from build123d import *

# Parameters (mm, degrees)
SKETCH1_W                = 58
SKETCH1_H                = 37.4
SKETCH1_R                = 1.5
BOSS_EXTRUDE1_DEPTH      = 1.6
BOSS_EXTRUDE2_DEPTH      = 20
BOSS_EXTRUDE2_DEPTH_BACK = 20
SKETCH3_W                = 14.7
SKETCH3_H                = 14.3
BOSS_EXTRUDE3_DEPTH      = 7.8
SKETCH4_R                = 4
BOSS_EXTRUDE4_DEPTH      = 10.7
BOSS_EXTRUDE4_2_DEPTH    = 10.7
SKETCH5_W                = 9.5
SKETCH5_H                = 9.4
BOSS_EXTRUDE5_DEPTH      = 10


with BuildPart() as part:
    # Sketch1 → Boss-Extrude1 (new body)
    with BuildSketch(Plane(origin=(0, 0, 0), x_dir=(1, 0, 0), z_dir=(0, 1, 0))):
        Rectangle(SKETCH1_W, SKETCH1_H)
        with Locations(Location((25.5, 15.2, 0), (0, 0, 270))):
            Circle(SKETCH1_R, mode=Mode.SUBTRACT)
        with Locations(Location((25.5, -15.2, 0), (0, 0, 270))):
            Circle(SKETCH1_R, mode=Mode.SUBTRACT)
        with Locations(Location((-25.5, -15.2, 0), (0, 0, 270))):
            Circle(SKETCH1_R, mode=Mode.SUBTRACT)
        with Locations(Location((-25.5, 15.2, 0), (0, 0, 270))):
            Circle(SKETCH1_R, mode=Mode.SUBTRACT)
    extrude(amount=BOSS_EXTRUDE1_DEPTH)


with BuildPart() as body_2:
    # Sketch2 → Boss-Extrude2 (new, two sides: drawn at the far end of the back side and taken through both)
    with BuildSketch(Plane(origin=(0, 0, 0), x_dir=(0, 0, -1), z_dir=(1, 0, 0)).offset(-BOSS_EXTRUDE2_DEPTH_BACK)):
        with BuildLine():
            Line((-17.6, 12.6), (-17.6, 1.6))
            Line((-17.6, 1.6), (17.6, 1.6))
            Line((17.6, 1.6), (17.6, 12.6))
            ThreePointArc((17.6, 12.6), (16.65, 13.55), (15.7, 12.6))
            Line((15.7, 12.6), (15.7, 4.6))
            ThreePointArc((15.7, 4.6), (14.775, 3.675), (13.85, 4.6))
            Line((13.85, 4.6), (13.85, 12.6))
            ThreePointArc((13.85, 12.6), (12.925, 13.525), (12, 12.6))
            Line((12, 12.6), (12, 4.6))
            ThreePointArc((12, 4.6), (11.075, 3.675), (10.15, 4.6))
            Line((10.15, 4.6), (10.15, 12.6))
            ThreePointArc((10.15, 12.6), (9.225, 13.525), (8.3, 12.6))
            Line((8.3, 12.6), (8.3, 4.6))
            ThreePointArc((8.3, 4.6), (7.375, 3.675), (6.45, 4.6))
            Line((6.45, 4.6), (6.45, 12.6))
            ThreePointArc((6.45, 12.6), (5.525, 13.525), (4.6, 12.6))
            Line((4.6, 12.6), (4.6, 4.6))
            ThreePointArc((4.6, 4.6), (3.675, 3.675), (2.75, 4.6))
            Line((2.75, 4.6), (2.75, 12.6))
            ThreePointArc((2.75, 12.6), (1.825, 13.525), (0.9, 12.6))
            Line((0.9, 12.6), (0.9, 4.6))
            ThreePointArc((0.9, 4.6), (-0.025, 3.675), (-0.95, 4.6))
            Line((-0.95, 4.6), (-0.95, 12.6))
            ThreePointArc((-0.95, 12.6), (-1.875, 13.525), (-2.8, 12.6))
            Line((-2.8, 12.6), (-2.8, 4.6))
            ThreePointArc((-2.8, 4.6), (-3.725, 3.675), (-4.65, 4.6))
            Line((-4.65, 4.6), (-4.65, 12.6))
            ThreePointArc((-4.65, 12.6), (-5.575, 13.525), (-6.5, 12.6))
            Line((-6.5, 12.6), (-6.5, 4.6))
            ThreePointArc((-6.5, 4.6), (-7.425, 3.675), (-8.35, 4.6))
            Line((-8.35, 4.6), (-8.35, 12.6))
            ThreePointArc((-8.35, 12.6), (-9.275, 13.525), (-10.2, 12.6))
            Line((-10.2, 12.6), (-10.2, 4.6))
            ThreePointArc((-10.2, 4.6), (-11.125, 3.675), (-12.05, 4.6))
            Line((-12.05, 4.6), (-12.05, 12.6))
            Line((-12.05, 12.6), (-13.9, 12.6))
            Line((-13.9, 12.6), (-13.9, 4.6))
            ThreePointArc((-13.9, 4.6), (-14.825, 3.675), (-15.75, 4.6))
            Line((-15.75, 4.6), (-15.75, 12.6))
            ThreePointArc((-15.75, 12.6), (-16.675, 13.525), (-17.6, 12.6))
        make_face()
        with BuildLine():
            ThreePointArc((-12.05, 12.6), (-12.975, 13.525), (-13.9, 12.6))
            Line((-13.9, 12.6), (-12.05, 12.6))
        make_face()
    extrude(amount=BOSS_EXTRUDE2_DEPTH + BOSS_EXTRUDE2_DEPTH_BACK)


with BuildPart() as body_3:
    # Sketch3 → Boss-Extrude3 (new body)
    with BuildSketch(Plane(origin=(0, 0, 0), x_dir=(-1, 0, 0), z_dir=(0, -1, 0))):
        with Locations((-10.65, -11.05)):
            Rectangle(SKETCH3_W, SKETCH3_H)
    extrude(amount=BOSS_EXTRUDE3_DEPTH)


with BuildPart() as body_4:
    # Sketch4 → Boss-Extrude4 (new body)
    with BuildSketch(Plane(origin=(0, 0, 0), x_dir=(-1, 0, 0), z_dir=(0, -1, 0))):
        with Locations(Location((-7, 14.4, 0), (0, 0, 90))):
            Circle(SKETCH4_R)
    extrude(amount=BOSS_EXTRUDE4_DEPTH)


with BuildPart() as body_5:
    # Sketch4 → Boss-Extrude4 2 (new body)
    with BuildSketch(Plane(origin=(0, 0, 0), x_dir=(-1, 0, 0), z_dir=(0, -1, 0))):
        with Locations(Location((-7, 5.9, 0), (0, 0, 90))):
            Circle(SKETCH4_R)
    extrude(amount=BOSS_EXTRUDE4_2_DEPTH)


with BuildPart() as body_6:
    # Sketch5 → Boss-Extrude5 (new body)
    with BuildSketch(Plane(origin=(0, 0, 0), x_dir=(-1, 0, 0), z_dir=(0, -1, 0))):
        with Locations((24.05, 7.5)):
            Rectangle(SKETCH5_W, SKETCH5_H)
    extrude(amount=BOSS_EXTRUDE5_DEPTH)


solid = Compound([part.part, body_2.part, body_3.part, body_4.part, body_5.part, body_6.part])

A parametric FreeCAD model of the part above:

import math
import FreeCAD as App
import Part
import Sketcher

V = App.Vector
Q = App.Units.Quantity

doc = App.newDocument("Part")
body = doc.addObject("PartDesign::Body", "Body")

# Sketch on XZ plane
sketch1 = body.newObject("Sketcher::SketchObject", "Sketch")
sketch1.AttachmentSupport = (doc.getObject("XZ_Plane"), [""])
sketch1.MapMode = "FlatFace"
sketch1.addGeometry([
    Part.LineSegment(V(-29, -18.7, 0), V(-29, 18.7, 0)),  # 0
    Part.LineSegment(V(-29, 18.7, 0), V(29, 18.7, 0)),  # 1
    Part.LineSegment(V(29, 18.7, 0), V(29, -18.7, 0)),  # 2
    Part.LineSegment(V(29, -18.7, 0), V(-29, -18.7, 0)),  # 3
    Part.Circle(V(-25.5, 15.2, 0), V(0, 0, 1), 1.5),  # 4
    Part.Circle(V(25.5, 15.2, 0), V(0, 0, 1), 1.5),  # 5
    Part.Circle(V(-25.5, -15.2, 0), V(0, 0, 1), 1.5),  # 6
    Part.Circle(V(25.5, -15.2, 0), V(0, 0, 1), 1.5),  # 7
], False)
sketch1.addConstraint([
    Sketcher.Constraint("Coincident", 0, 2, 1, 1),
    Sketcher.Constraint("Coincident", 1, 2, 2, 1),
    Sketcher.Constraint("Coincident", 2, 2, 3, 1),
    Sketcher.Constraint("Coincident", 3, 2, 0, 1),
    Sketcher.Constraint("Vertical", 0),
    Sketcher.Constraint("Horizontal", 1),
    Sketcher.Constraint("Vertical", 2),
    Sketcher.Constraint("Horizontal", 3),
    Sketcher.Constraint("Equal", 4, 5),
    Sketcher.Constraint("Equal", 5, 6),
    Sketcher.Constraint("Equal", 6, 7),
    Sketcher.Constraint("Symmetric", 5, 3, 6, 3, -1, 1),
    Sketcher.Constraint("Symmetric", 4, 3, 7, 3, -1, 1),
    Sketcher.Constraint("Symmetric", 0, 2, 2, 2, -1, 1),
    Sketcher.Constraint("Symmetric", 4, 3, 5, 3, -2),
    Sketcher.Constraint("Diameter", 4, Q("3 mm")),
    Sketcher.Constraint("DistanceX", 1, 1, 1, 2, Q("58 mm")),
    Sketcher.Constraint("DistanceY", 0, 1, 0, 2, Q("37.4 mm")),
    Sketcher.Constraint("DistanceX", 4, 3, 5, 3, Q("51 mm")),
    Sketcher.Constraint("DistanceY", -1, 1, 4, 3, Q("15.2 mm")),
])
pad1 = body.newObject("PartDesign::Pad", "Pad")
pad1.Profile = sketch1
pad1.Length = 1.6
pad1.Reversed = True
body2 = doc.addObject("PartDesign::Body", "Body001")

# Sketch on YZ plane
sketch2 = body2.newObject("Sketcher::SketchObject", "Sketch001")
sketch2.AttachmentSupport = (doc.getObject("YZ_Plane001"), [""])
sketch2.MapMode = "FlatFace"
sketch2.addGeometry([
    Part.LineSegment(V(12.6, 17.6, 0), V(1.6, 17.6, 0)),  # 0
    Part.LineSegment(V(1.6, 17.6, 0), V(1.6, -17.6, 0)),  # 1
    Part.LineSegment(V(1.6, -17.6, 0), V(12.6, -17.6, 0)),  # 2
    Part.ArcOfCircle(Part.Circle(V(12.6, -16.65, 0), V(0, 0, 1), 0.95), math.radians(-90), math.radians(90)),  # 3
    Part.LineSegment(V(12.6, -15.7, 0), V(4.6, -15.7, 0)),  # 4
    Part.ArcOfCircle(Part.Circle(V(4.6, -14.775, 0), V(0, 0, 1), 0.925), math.radians(90), math.radians(270)),  # 5
    Part.LineSegment(V(4.6, -13.85, 0), V(12.6, -13.85, 0)),  # 6
    Part.ArcOfCircle(Part.Circle(V(12.6, -12.925, 0), V(0, 0, 1), 0.925), math.radians(-90), math.radians(90)),  # 7
    Part.LineSegment(V(12.6, -12, 0), V(4.6, -12, 0)),  # 8
    Part.ArcOfCircle(Part.Circle(V(4.6, -11.075, 0), V(0, 0, 1), 0.925), math.radians(90), math.radians(270)),  # 9
    Part.LineSegment(V(4.6, -10.15, 0), V(12.6, -10.15, 0)),  # 10
    Part.ArcOfCircle(Part.Circle(V(12.6, -9.225, 0), V(0, 0, 1), 0.925), math.radians(-90), math.radians(90)),  # 11
    Part.LineSegment(V(12.6, -8.3, 0), V(4.6, -8.3, 0)),  # 12
    Part.ArcOfCircle(Part.Circle(V(4.6, -7.375, 0), V(0, 0, 1), 0.925), math.radians(90), math.radians(270)),  # 13
    Part.LineSegment(V(4.6, -6.45, 0), V(12.6, -6.45, 0)),  # 14
    Part.ArcOfCircle(Part.Circle(V(12.6, -5.525, 0), V(0, 0, 1), 0.925), math.radians(-90), math.radians(90)),  # 15
    Part.LineSegment(V(12.6, -4.6, 0), V(4.6, -4.6, 0)),  # 16
    Part.ArcOfCircle(Part.Circle(V(4.6, -3.675, 0), V(0, 0, 1), 0.925), math.radians(90), math.radians(270)),  # 17
    Part.LineSegment(V(4.6, -2.75, 0), V(12.6, -2.75, 0)),  # 18
    Part.ArcOfCircle(Part.Circle(V(12.6, -1.825, 0), V(0, 0, 1), 0.925), math.radians(-90), math.radians(90)),  # 19
    Part.LineSegment(V(12.6, -0.9, 0), V(4.6, -0.9, 0)),  # 20
    Part.ArcOfCircle(Part.Circle(V(4.6, 0.025, 0), V(0, 0, 1), 0.925), math.radians(90), math.radians(270)),  # 21
    Part.LineSegment(V(4.6, 0.95, 0), V(12.6, 0.95, 0)),  # 22
    Part.ArcOfCircle(Part.Circle(V(12.6, 1.875, 0), V(0, 0, 1), 0.925), math.radians(-90), math.radians(90)),  # 23
    Part.LineSegment(V(12.6, 2.8, 0), V(4.6, 2.8, 0)),  # 24
    Part.ArcOfCircle(Part.Circle(V(4.6, 3.725, 0), V(0, 0, 1), 0.925), math.radians(90), math.radians(270)),  # 25
    Part.LineSegment(V(4.6, 4.65, 0), V(12.6, 4.65, 0)),  # 26
    Part.ArcOfCircle(Part.Circle(V(12.6, 5.575, 0), V(0, 0, 1), 0.925), math.radians(-90), math.radians(90)),  # 27
    Part.LineSegment(V(12.6, 6.5, 0), V(4.6, 6.5, 0)),  # 28
    Part.ArcOfCircle(Part.Circle(V(4.6, 7.425, 0), V(0, 0, 1), 0.925), math.radians(90), math.radians(270)),  # 29
    Part.LineSegment(V(4.6, 8.35, 0), V(12.6, 8.35, 0)),  # 30
    Part.ArcOfCircle(Part.Circle(V(12.6, 9.275, 0), V(0, 0, 1), 0.925), math.radians(-90), math.radians(90)),  # 31
    Part.LineSegment(V(12.6, 10.2, 0), V(4.6, 10.2, 0)),  # 32
    Part.ArcOfCircle(Part.Circle(V(4.6, 11.125, 0), V(0, 0, 1), 0.925), math.radians(90), math.radians(270)),  # 33
    Part.LineSegment(V(4.6, 12.05, 0), V(12.6, 12.05, 0)),  # 34
    Part.ArcOfCircle(Part.Circle(V(12.6, 12.975, 0), V(0, 0, 1), 0.925), math.radians(-90), math.radians(90)),  # 35
    Part.LineSegment(V(12.6, 13.9, 0), V(4.6, 13.9, 0)),  # 36
    Part.ArcOfCircle(Part.Circle(V(4.6, 14.825, 0), V(0, 0, 1), 0.925), math.radians(90), math.radians(270)),  # 37
    Part.LineSegment(V(4.6, 15.75, 0), V(12.6, 15.75, 0)),  # 38
    Part.ArcOfCircle(Part.Circle(V(12.6, 16.675, 0), V(0, 0, 1), 0.925), math.radians(-90), math.radians(90)),  # 39
], False)
sketch2.addConstraint([
    Sketcher.Constraint("Coincident", 0, 2, 1, 1),
    Sketcher.Constraint("Coincident", 1, 2, 2, 1),
    Sketcher.Constraint("Tangent", 2, 2, 3, 1),
    Sketcher.Constraint("Tangent", 3, 2, 4, 1),
    Sketcher.Constraint("Tangent", 4, 2, 5, 2),
    Sketcher.Constraint("Tangent", 5, 1, 6, 1),
    Sketcher.Constraint("Tangent", 6, 2, 7, 1),
    Sketcher.Constraint("Tangent", 7, 2, 8, 1),
    Sketcher.Constraint("Tangent", 8, 2, 9, 2),
    Sketcher.Constraint("Tangent", 9, 1, 10, 1),
    Sketcher.Constraint("Tangent", 10, 2, 11, 1),
    Sketcher.Constraint("Tangent", 11, 2, 12, 1),
    Sketcher.Constraint("Tangent", 12, 2, 13, 2),
    Sketcher.Constraint("Tangent", 13, 1, 14, 1),
    Sketcher.Constraint("Tangent", 14, 2, 15, 1),
    Sketcher.Constraint("Tangent", 15, 2, 16, 1),
    Sketcher.Constraint("Tangent", 16, 2, 17, 2),
    Sketcher.Constraint("Tangent", 17, 1, 18, 1),
    Sketcher.Constraint("Tangent", 18, 2, 19, 1),
    Sketcher.Constraint("Tangent", 19, 2, 20, 1),
    Sketcher.Constraint("Tangent", 20, 2, 21, 2),
    Sketcher.Constraint("Tangent", 21, 1, 22, 1),
    Sketcher.Constraint("Tangent", 22, 2, 23, 1),
    Sketcher.Constraint("Tangent", 23, 2, 24, 1),
    Sketcher.Constraint("Tangent", 24, 2, 25, 2),
    Sketcher.Constraint("Tangent", 25, 1, 26, 1),
    Sketcher.Constraint("Tangent", 26, 2, 27, 1),
    Sketcher.Constraint("Tangent", 27, 2, 28, 1),
    Sketcher.Constraint("Tangent", 28, 2, 29, 2),
    Sketcher.Constraint("Tangent", 29, 1, 30, 1),
    Sketcher.Constraint("Tangent", 30, 2, 31, 1),
    Sketcher.Constraint("Tangent", 31, 2, 32, 1),
    Sketcher.Constraint("Tangent", 32, 2, 33, 2),
    Sketcher.Constraint("Tangent", 33, 1, 34, 1),
    Sketcher.Constraint("Tangent", 34, 2, 35, 1),
    Sketcher.Constraint("Tangent", 35, 2, 36, 1),
    Sketcher.Constraint("Tangent", 36, 2, 37, 2),
    Sketcher.Constraint("Tangent", 37, 1, 38, 1),
    Sketcher.Constraint("Tangent", 38, 2, 39, 1),
    Sketcher.Constraint("Tangent", 39, 2, 0, 1),
    Sketcher.Constraint("Horizontal", 0),
    Sketcher.Constraint("Vertical", 1),
    Sketcher.Constraint("Horizontal", 2),
    Sketcher.Constraint("Horizontal", 4),
    Sketcher.Constraint("Horizontal", 6),
    Sketcher.Constraint("Horizontal", 8),
    Sketcher.Constraint("Horizontal", 10),
    Sketcher.Constraint("Horizontal", 12),
    Sketcher.Constraint("Horizontal", 14),
    Sketcher.Constraint("Horizontal", 16),
    Sketcher.Constraint("Horizontal", 18),
    Sketcher.Constraint("Horizontal", 20),
    Sketcher.Constraint("Horizontal", 22),
    Sketcher.Constraint("Horizontal", 24),
    Sketcher.Constraint("Horizontal", 26),
    Sketcher.Constraint("Horizontal", 28),
    Sketcher.Constraint("Horizontal", 30),
    Sketcher.Constraint("Horizontal", 32),
    Sketcher.Constraint("Horizontal", 34),
    Sketcher.Constraint("Horizontal", 36),
    Sketcher.Constraint("Horizontal", 38),
    Sketcher.Constraint("Equal", 5, 7),
    Sketcher.Constraint("Equal", 7, 9),
    Sketcher.Constraint("Equal", 9, 11),
    Sketcher.Constraint("Equal", 11, 13),
    Sketcher.Constraint("Equal", 13, 15),
    Sketcher.Constraint("Equal", 15, 17),
    Sketcher.Constraint("Equal", 17, 19),
    Sketcher.Constraint("Equal", 19, 21),
    Sketcher.Constraint("Equal", 21, 23),
    Sketcher.Constraint("Equal", 23, 25),
    Sketcher.Constraint("Equal", 25, 27),
    Sketcher.Constraint("Equal", 27, 29),
    Sketcher.Constraint("Equal", 29, 31),
    Sketcher.Constraint("Equal", 31, 33),
    Sketcher.Constraint("Equal", 33, 35),
    Sketcher.Constraint("Equal", 35, 37),
    Sketcher.Constraint("Equal", 37, 39),
    Sketcher.Constraint("Symmetric", 2, 2, 39, 2, -1),
    Sketcher.Constraint("Vertical", 3, 3, 7, 3),
    Sketcher.Constraint("Vertical", 5, 3, 9, 3),
    Sketcher.Constraint("Vertical", 7, 3, 11, 3),
    Sketcher.Constraint("Vertical", 9, 3, 13, 3),
    Sketcher.Constraint("Vertical", 11, 3, 15, 3),
    Sketcher.Constraint("Vertical", 13, 3, 17, 3),
    Sketcher.Constraint("Vertical", 15, 3, 19, 3),
    Sketcher.Constraint("Vertical", 17, 3, 21, 3),
    Sketcher.Constraint("Vertical", 19, 3, 23, 3),
    Sketcher.Constraint("Vertical", 21, 3, 25, 3),
    Sketcher.Constraint("Vertical", 23, 3, 27, 3),
    Sketcher.Constraint("Vertical", 25, 3, 29, 3),
    Sketcher.Constraint("Vertical", 27, 3, 31, 3),
    Sketcher.Constraint("Vertical", 29, 3, 33, 3),
    Sketcher.Constraint("Vertical", 31, 3, 35, 3),
    Sketcher.Constraint("Vertical", 33, 3, 37, 3),
    Sketcher.Constraint("DistanceX", 0, 2, 0, 1, Q("11 mm")),
    Sketcher.Constraint("DistanceX", 4, 2, 4, 1, Q("8 mm")),
    Sketcher.Constraint("Radius", 3, Q("0.95 mm")),
    Sketcher.Constraint("DistanceY", 1, 2, 1, 1, Q("35.2 mm")),
    Sketcher.Constraint("DistanceX", -1, 1, 3, 3, Q("12.6 mm")),
])
pad2 = body2.newObject("PartDesign::Pad", "Pad001")
pad2.Profile = sketch2
pad2.Type = "TwoLengths"
pad2.Length = 20
pad2.Length2 = 20
body3 = doc.addObject("PartDesign::Body", "Body002")

# Sketch on XZ plane
sketch3 = body3.newObject("Sketcher::SketchObject", "Sketch002")
sketch3.AttachmentSupport = (doc.getObject("XZ_Plane002"), [""])
sketch3.MapMode = "FlatFace"
sketch3.addGeometry([
    Part.LineSegment(V(18, 3.9, 0), V(18, 18.2, 0)),
    Part.LineSegment(V(18, 18.2, 0), V(3.3, 18.2, 0)),
    Part.LineSegment(V(3.3, 18.2, 0), V(3.3, 3.9, 0)),
    Part.LineSegment(V(3.3, 3.9, 0), V(18, 3.9, 0)),
], False)
sketch3.addConstraint([
    Sketcher.Constraint("Coincident", 0, 2, 1, 1),
    Sketcher.Constraint("Coincident", 1, 2, 2, 1),
    Sketcher.Constraint("Coincident", 2, 2, 3, 1),
    Sketcher.Constraint("Coincident", 3, 2, 0, 1),
    Sketcher.Constraint("Vertical", 0),
    Sketcher.Constraint("Horizontal", 1),
    Sketcher.Constraint("Vertical", 2),
    Sketcher.Constraint("Horizontal", 3),
    Sketcher.Constraint("DistanceX", 1, 2, 1, 1, Q("14.7 mm")),
    Sketcher.Constraint("DistanceY", 0, 1, 0, 2, Q("14.3 mm")),
    Sketcher.Constraint("DistanceX", -1, 1, 0, 2, Q("18 mm")),
    Sketcher.Constraint("DistanceY", -1, 1, 0, 2, Q("18.2 mm")),
])
pad3 = body3.newObject("PartDesign::Pad", "Pad002")
pad3.Profile = sketch3
pad3.Length = 7.8
body4 = doc.addObject("PartDesign::Body", "Body003")

# Sketch on XZ plane
sketch4 = body4.newObject("Sketcher::SketchObject", "Sketch003")
sketch4.AttachmentSupport = (doc.getObject("XZ_Plane003"), [""])
sketch4.MapMode = "FlatFace"
sketch4.addGeometry(Part.Circle(V(7, -14.4, 0), V(0, 0, 1), 4), False)
sketch4.addConstraint([
    Sketcher.Constraint("Diameter", 0, Q("8 mm")),
    Sketcher.Constraint("DistanceX", -1, 1, 0, 3, Q("7 mm")),
    Sketcher.Constraint("DistanceY", 0, 3, -1, 1, Q("14.4 mm")),
])
pad4 = body4.newObject("PartDesign::Pad", "Pad003")
pad4.Profile = sketch4
pad4.Length = 10.7
body5 = doc.addObject("PartDesign::Body", "Body004")

# Sketch on XZ plane
sketch5 = body5.newObject("Sketcher::SketchObject", "Sketch004")
sketch5.AttachmentSupport = (doc.getObject("XZ_Plane004"), [""])
sketch5.MapMode = "FlatFace"
sketch5.addGeometry(Part.Circle(V(7, -5.9, 0), V(0, 0, 1), 4), False)
sketch5.addConstraint([
    Sketcher.Constraint("Diameter", 0, Q("8 mm")),
    Sketcher.Constraint("DistanceX", -1, 1, 0, 3, Q("7 mm")),
    Sketcher.Constraint("DistanceY", 0, 3, -1, 1, Q("5.9 mm")),
])
pad5 = body5.newObject("PartDesign::Pad", "Pad004")
pad5.Profile = sketch5
pad5.Length = 10.7
body6 = doc.addObject("PartDesign::Body", "Body005")

# Sketch on XZ plane
sketch6 = body6.newObject("Sketcher::SketchObject", "Sketch005")
sketch6.AttachmentSupport = (doc.getObject("XZ_Plane005"), [""])
sketch6.MapMode = "FlatFace"
sketch6.addGeometry([
    Part.LineSegment(V(-19.3, -12.2, 0), V(-19.3, -2.8, 0)),
    Part.LineSegment(V(-19.3, -2.8, 0), V(-28.8, -2.8, 0)),
    Part.LineSegment(V(-28.8, -2.8, 0), V(-28.8, -12.2, 0)),
    Part.LineSegment(V(-28.8, -12.2, 0), V(-19.3, -12.2, 0)),
], False)
sketch6.addConstraint([
    Sketcher.Constraint("Coincident", 0, 2, 1, 1),
    Sketcher.Constraint("Coincident", 1, 2, 2, 1),
    Sketcher.Constraint("Coincident", 2, 2, 3, 1),
    Sketcher.Constraint("Coincident", 3, 2, 0, 1),
    Sketcher.Constraint("Vertical", 0),
    Sketcher.Constraint("Horizontal", 1),
    Sketcher.Constraint("Vertical", 2),
    Sketcher.Constraint("Horizontal", 3),
    Sketcher.Constraint("DistanceX", 1, 2, 1, 1, Q("9.5 mm")),
    Sketcher.Constraint("DistanceY", 0, 1, 0, 2, Q("9.4 mm")),
    Sketcher.Constraint("DistanceX", 0, 2, -1, 1, Q("19.3 mm")),
    Sketcher.Constraint("DistanceY", 0, 2, -1, 1, Q("2.8 mm")),
])
pad6 = body6.newObject("PartDesign::Pad", "Pad005")
pad6.Profile = sketch6
pad6.Length = 10

doc.recompute()
